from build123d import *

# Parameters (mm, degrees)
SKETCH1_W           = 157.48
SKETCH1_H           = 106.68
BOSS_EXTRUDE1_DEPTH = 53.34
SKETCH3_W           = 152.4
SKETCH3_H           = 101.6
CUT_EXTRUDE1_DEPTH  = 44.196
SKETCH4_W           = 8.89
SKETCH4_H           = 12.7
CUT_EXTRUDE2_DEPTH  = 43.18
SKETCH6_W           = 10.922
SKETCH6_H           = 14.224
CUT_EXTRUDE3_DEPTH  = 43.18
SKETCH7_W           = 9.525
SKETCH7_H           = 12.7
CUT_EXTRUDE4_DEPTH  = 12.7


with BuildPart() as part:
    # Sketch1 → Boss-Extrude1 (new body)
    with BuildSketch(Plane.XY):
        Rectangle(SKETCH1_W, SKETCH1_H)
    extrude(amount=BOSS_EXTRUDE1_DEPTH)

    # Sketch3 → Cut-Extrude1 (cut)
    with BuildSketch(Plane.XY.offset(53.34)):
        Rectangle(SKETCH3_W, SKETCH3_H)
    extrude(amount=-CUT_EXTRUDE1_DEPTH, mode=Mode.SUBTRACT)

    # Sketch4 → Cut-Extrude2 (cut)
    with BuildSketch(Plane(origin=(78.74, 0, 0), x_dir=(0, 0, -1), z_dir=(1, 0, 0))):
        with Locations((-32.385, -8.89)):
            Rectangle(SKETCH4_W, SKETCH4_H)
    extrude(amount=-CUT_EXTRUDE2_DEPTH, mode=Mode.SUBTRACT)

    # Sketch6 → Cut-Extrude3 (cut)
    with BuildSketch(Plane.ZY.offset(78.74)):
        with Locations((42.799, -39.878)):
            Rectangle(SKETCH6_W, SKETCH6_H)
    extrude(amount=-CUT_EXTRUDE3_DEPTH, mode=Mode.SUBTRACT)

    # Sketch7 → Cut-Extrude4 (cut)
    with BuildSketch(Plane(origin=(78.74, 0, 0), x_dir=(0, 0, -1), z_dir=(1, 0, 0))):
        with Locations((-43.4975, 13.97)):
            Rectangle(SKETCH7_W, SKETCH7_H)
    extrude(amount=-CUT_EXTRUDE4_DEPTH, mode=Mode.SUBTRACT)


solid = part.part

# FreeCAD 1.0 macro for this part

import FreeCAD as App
import Part
import Sketcher

V = App.Vector
Q = App.Units.Quantity

doc = App.newDocument("Part")
params = doc.addObject("Spreadsheet::Sheet", "Params")
for row, (alias, value) in enumerate([
    ("sketch1_width", "6.2 in"),
    ("sketch1_height", "4.2 in"),
    ("pad1_length", "2.1 in"),
    ("sketch2_width", "6 in"),
    ("sketch2_height", "4 in"),
    ("pocket1_length", "1.74 in"),
    ("sketch3_width", "0.5 in"),
    ("sketch3_height", "0.35 in"),
    ("pocket2_length", "1.7 in"),
    ("sketch4_width", "0.56 in"),
    ("sketch4_height", "0.43 in"),
    ("pocket3_length", "1.7 in"),
    ("sketch5_width", "0.5 in"),
    ("sketch5_height", "0.375 in"),
    ("pocket4_length", "0.5 in"),
], start=1):
    params.set(f"A{row}", alias)
    params.set(f"B{row}", "=" + value)
    params.setAlias(f"B{row}", alias)

body = doc.addObject("PartDesign::Body", "Body")

# Sketch on XY plane
sketch1 = body.newObject("Sketcher::SketchObject", "Sketch")
sketch1.AttachmentSupport = (doc.getObject("XY_Plane"), [""])
sketch1.MapMode = "FlatFace"
sketch1.addGeometry(Part.LineSegment(V(-78.74, 53.34, 0), V(-78.74, -53.34, 0)), False)
sketch1.addGeometry(Part.LineSegment(V(-78.74, -53.34, 0), V(78.74, -53.34, 0)), False)
sketch1.addGeometry(Part.LineSegment(V(78.74, -53.34, 0), V(78.74, 53.34, 0)), False)
sketch1.addGeometry(Part.LineSegment(V(78.74, 53.34, 0), V(-78.74, 53.34, 0)), False)
sketch1.addConstraint(Sketcher.Constraint("Coincident", 0, 2, 1, 1))
sketch1.addConstraint(Sketcher.Constraint("Coincident", 1, 2, 2, 1))
sketch1.addConstraint(Sketcher.Constraint("Coincident", 2, 2, 3, 1))
sketch1.addConstraint(Sketcher.Constraint("Coincident", 3, 2, 0, 1))
sketch1.addConstraint(Sketcher.Constraint("Vertical", 0))
sketch1.addConstraint(Sketcher.Constraint("Horizontal", 1))
sketch1.addConstraint(Sketcher.Constraint("Vertical", 2))
sketch1.addConstraint(Sketcher.Constraint("Horizontal", 3))
sketch1.addConstraint(Sketcher.Constraint("Symmetric", 0, 2, 2, 2, -1, 1))
sketch1.addConstraint(Sketcher.Constraint("DistanceX", 1, 1, 1, 2, Q("6.2 in")))
sketch1.addConstraint(Sketcher.Constraint("DistanceY", 0, 2, 0, 1, Q("4.2 in")))
sketch1.setExpression("Constraints[9]", "Params.sketch1_width")
sketch1.setExpression("Constraints[10]", "Params.sketch1_height")
pad1 = body.newObject("PartDesign::Pad", "Pad")
pad1.Profile = sketch1
pad1.setExpression("Length", "Params.pad1_length")

# Sketch on XY plane
sketch2 = body.newObject("Sketcher::SketchObject", "Sketch001")
sketch2.AttachmentSupport = (doc.getObject("XY_Plane"), [""])
sketch2.MapMode = "FlatFace"
sketch2.AttachmentOffset = App.Placement(V(0, 0, 2.1 * 25.4), App.Rotation())
sketch2.addGeometry(Part.LineSegment(V(-76.2, 50.8, 0), V(-76.2, -50.8, 0)), False)
sketch2.addGeometry(Part.LineSegment(V(-76.2, -50.8, 0), V(76.2, -50.8, 0)), False)
sketch2.addGeometry(Part.LineSegment(V(76.2, -50.8, 0), V(76.2, 50.8, 0)), False)
sketch2.addGeometry(Part.LineSegment(V(76.2, 50.8, 0), V(-76.2, 50.8, 0)), False)
sketch2.addConstraint(Sketcher.Constraint("Coincident", 0, 2, 1, 1))
sketch2.addConstraint(Sketcher.Constraint("Coincident", 1, 2, 2, 1))
sketch2.addConstraint(Sketcher.Constraint("Coincident", 2, 2, 3, 1))
sketch2.addConstraint(Sketcher.Constraint("Coincident", 3, 2, 0, 1))
sketch2.addConstraint(Sketcher.Constraint("Vertical", 0))
sketch2.addConstraint(Sketcher.Constraint("Horizontal", 1))
sketch2.addConstraint(Sketcher.Constraint("Vertical", 2))
sketch2.addConstraint(Sketcher.Constraint("Horizontal", 3))
sketch2.addConstraint(Sketcher.Constraint("Symmetric", 0, 2, 2, 2, -1, 1))
sketch2.addConstraint(Sketcher.Constraint("DistanceX", 1, 1, 1, 2, Q("6 in")))
sketch2.addConstraint(Sketcher.Constraint("DistanceY", 0, 2, 0, 1, Q("4 in")))
sketch2.setExpression("Constraints[9]", "Params.sketch2_width")
sketch2.setExpression("Constraints[10]", "Params.sketch2_height")
pocket1 = body.newObject("PartDesign::Pocket", "Pocket")
pocket1.Profile = sketch2
pocket1.setExpression("Length", "Params.pocket1_length")

# Sketch on YZ plane
sketch3 = body.newObject("Sketcher::SketchObject", "Sketch002")
sketch3.AttachmentSupport = (doc.getObject("YZ_Plane"), [""])
sketch3.MapMode = "FlatFace"
sketch3.AttachmentOffset = App.Placement(V(0, 0, 3.1 * 25.4), App.Rotation())
sketch3.addGeometry(Part.LineSegment(V(-2.54, 36.83, 0), V(-15.24, 36.83, 0)), False)
sketch3.addGeometry(Part.LineSegment(V(-15.24, 36.83, 0), V(-15.24, 27.94, 0)), False)
sketch3.addGeometry(Part.LineSegment(V(-15.24, 27.94, 0), V(-2.54, 27.94, 0)), False)
sketch3.addGeometry(Part.LineSegment(V(-2.54, 27.94, 0), V(-2.54, 36.83, 0)), False)
sketch3.addConstraint(Sketcher.Constraint("Coincident", 0, 2, 1, 1))
sketch3.addConstraint(Sketcher.Constraint("Coincident", 1, 2, 2, 1))
sketch3.addConstraint(Sketcher.Constraint("Coincident", 2, 2, 3, 1))
sketch3.addConstraint(Sketcher.Constraint("Coincident", 3, 2, 0, 1))
sketch3.addConstraint(Sketcher.Constraint("Horizontal", 0))
sketch3.addConstraint(Sketcher.Constraint("Vertical", 1))
sketch3.addConstraint(Sketcher.Constraint("Horizontal", 2))
sketch3.addConstraint(Sketcher.Constraint("Vertical", 3))
sketch3.addConstraint(Sketcher.Constraint("DistanceX", 0, 2, 0, 1, Q("0.5 in")))
sketch3.addConstraint(Sketcher.Constraint("DistanceY", 1, 2, 1, 1, Q("0.35 in")))
sketch3.addConstraint(Sketcher.Constraint("DistanceX", 0, 2, -1, 1, Q("0.6 in")))
sketch3.addConstraint(Sketcher.Constraint("DistanceY", -1, 1, 1, 2, Q("1.1 in")))
sketch3.setExpression("Constraints[8]", "Params.sketch3_width")
sketch3.setExpression("Constraints[9]", "Params.sketch3_height")
pocket2 = body.newObject("PartDesign::Pocket", "Pocket001")
pocket2.Profile = sketch3
pocket2.setExpression("Length", "Params.pocket2_length")

# Sketch on YZ plane
sketch4 = body.newObject("Sketcher::SketchObject", "Sketch003")
sketch4.AttachmentSupport = (doc.getObject("YZ_Plane"), [""])
sketch4.MapMode = "FlatFace"
sketch4.AttachmentOffset = App.Placement(V(0, 0, -3.1 * 25.4), App.Rotation())
sketch4.addGeometry(Part.LineSegment(V(-32.766, 37.338, 0), V(-46.99, 37.338, 0)), False)
sketch4.addGeometry(Part.LineSegment(V(-46.99, 37.338, 0), V(-46.99, 48.26, 0)), False)
sketch4.addGeometry(Part.LineSegment(V(-46.99, 48.26, 0), V(-32.766, 48.26, 0)), False)
sketch4.addGeometry(Part.LineSegment(V(-32.766, 48.26, 0), V(-32.766, 37.338, 0)), False)
sketch4.addConstraint(Sketcher.Constraint("Coincident", 0, 2, 1, 1))
sketch4.addConstraint(Sketcher.Constraint("Coincident", 1, 2, 2, 1))
sketch4.addConstraint(Sketcher.Constraint("Coincident", 2, 2, 3, 1))
sketch4.addConstraint(Sketcher.Constraint("Coincident", 3, 2, 0, 1))
sketch4.addConstraint(Sketcher.Constraint("Horizontal", 0))
sketch4.addConstraint(Sketcher.Constraint("Vertical", 1))
sketch4.addConstraint(Sketcher.Constraint("Horizontal", 2))
sketch4.addConstraint(Sketcher.Constraint("Vertical", 3))
sketch4.addConstraint(Sketcher.Constraint("DistanceX", 0, 2, 0, 1, Q("0.56 in")))
sketch4.addConstraint(Sketcher.Constraint("DistanceY", 1, 1, 1, 2, Q("0.43 in")))
sketch4.addConstraint(Sketcher.Constraint("DistanceY", -1, 1, 1, 2, Q("1.9 in")))
sketch4.addConstraint(Sketcher.Constraint("DistanceX", 0, 2, -1, 1, Q("1.85 in")))
sketch4.setExpression("Constraints[8]", "Params.sketch4_width")
sketch4.setExpression("Constraints[9]", "Params.sketch4_height")
pocket3 = body.newObject("PartDesign::Pocket", "Pocket002")
pocket3.Profile = sketch4
pocket3.setExpression("Length", "Params.pocket3_length")
pocket3.Reversed = True

# Sketch on YZ plane
sketch5 = body.newObject("Sketcher::SketchObject", "Sketch004")
sketch5.AttachmentSupport = (doc.getObject("YZ_Plane"), [""])
sketch5.MapMode = "FlatFace"
sketch5.AttachmentOffset = App.Placement(V(0, 0, 3.1 * 25.4), App.Rotation())
sketch5.addGeometry(Part.LineSegment(V(20.32, 48.26, 0), V(7.62, 48.26, 0)), False)
sketch5.addGeometry(Part.LineSegment(V(7.62, 48.26, 0), V(7.62, 38.735, 0)), False)
sketch5.addGeometry(Part.LineSegment(V(7.62, 38.735, 0), V(20.32, 38.735, 0)), False)
sketch5.addGeometry(Part.LineSegment(V(20.32, 38.735, 0), V(20.32, 48.26, 0)), False)
sketch5.addConstraint(Sketcher.Constraint("Coincident", 0, 2, 1, 1))
sketch5.addConstraint(Sketcher.Constraint("Coincident", 1, 2, 2, 1))
sketch5.addConstraint(Sketcher.Constraint("Coincident", 2, 2, 3, 1))
sketch5.addConstraint(Sketcher.Constraint("Coincident", 3, 2, 0, 1))
sketch5.addConstraint(Sketcher.Constraint("Horizontal", 0))
sketch5.addConstraint(Sketcher.Constraint("Vertical", 1))
sketch5.addConstraint(Sketcher.Constraint("Horizontal", 2))
sketch5.addConstraint(Sketcher.Constraint("Vertical", 3))
sketch5.addConstraint(Sketcher.Constraint("DistanceX", 0, 2, 0, 1, Q("0.5 in")))
sketch5.addConstraint(Sketcher.Constraint("DistanceX", -1, 1, 0, 2, Q("0.3 in")))
sketch5.addConstraint(Sketcher.Constraint("DistanceY", -1, 1, 0, 2, Q("1.9 in")))
sketch5.addConstraint(Sketcher.Constraint("DistanceY", 1, 2, 1, 1, Q("0.375 in")))
sketch5.setExpression("Constraints[8]", "Params.sketch5_width")
sketch5.setExpression("Constraints[11]", "Params.sketch5_height")
pocket4 = body.newObject("PartDesign::Pocket", "Pocket003")
pocket4.Profile = sketch5
pocket4.setExpression("Length", "Params.pocket4_length")

doc.recompute()
